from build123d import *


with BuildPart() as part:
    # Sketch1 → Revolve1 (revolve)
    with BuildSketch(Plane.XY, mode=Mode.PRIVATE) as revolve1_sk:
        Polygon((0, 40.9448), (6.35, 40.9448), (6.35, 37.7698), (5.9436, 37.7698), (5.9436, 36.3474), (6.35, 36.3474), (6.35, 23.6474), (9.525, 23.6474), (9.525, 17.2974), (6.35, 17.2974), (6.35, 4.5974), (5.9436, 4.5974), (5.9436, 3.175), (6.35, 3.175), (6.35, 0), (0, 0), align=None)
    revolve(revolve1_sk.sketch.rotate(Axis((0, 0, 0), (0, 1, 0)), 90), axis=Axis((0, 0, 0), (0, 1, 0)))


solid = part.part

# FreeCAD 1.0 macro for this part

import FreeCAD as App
import Part
import Sketcher

V = App.Vector
Q = App.Units.Quantity


def add_polygon(sketch, points):
    """Adds a closed chain of lines whose ends are joined by coincident constraints."""
    first, n = sketch.GeometryCount, len(points)
    for a, b in zip(points, points[1:] + points[:1]):
        sketch.addGeometry(Part.LineSegment(App.Vector(*a, 0), App.Vector(*b, 0)), False)
    for i in range(n):
        sketch.addConstraint(Sketcher.Constraint("Coincident", first + i, 2, first + (i + 1) % n, 1))

doc = App.newDocument("Part")
body = doc.addObject("PartDesign::Body", "Body")

sketch1 = body.newObject("Sketcher::SketchObject", "Sketch")
sketch1.AttachmentSupport = (doc.getObject("XY_Plane"), [""])
sketch1.MapMode = "FlatFace"
add_polygon(sketch1, [(6.35, 40.9448), (0, 40.9448), (0, 0), (6.35, 0), (6.35, 3.175), (5.9436, 3.175), (5.9436, 4.5974), (6.35, 4.5974), (6.35, 17.2974), (9.525, 17.2974), (9.525, 23.6474), (6.35, 23.6474), (6.35, 36.3474), (5.9436, 36.3474), (5.9436, 37.7698), (6.35, 37.7698)])
sketch1.addConstraint(Sketcher.Constraint("Horizontal", 0))
sketch1.addConstraint(Sketcher.Constraint("Vertical", 1))
sketch1.addConstraint(Sketcher.Constraint("Horizontal", 2))
sketch1.addConstraint(Sketcher.Constraint("Vertical", 3))
sketch1.addConstraint(Sketcher.Constraint("Horizontal", 4))
sketch1.addConstraint(Sketcher.Constraint("Vertical", 5))
sketch1.addConstraint(Sketcher.Constraint("Horizontal", 6))
sketch1.addConstraint(Sketcher.Constraint("Vertical", 7))
sketch1.addConstraint(Sketcher.Constraint("Horizontal", 8))
sketch1.addConstraint(Sketcher.Constraint("Vertical", 9))
sketch1.addConstraint(Sketcher.Constraint("Horizontal", 10))
sketch1.addConstraint(Sketcher.Constraint("Vertical", 11))
sketch1.addConstraint(Sketcher.Constraint("Horizontal", 12))
sketch1.addConstraint(Sketcher.Constraint("Vertical", 13))
sketch1.addConstraint(Sketcher.Constraint("Horizontal", 14))
sketch1.addConstraint(Sketcher.Constraint("Vertical", 15))
sketch1.addConstraint(Sketcher.Constraint("Coincident", 1, 2, -1, 1))
sketch1.addConstraint(Sketcher.Constraint("Vertical", 3, 2, 6, 2))
sketch1.addConstraint(Sketcher.Constraint("Vertical", 7, 2, 10, 2))
sketch1.addConstraint(Sketcher.Constraint("Vertical", 5, 2, 12, 2))
sketch1.addConstraint(Sketcher.Constraint("Vertical", 11, 2, 14, 2))
sketch1.addConstraint(Sketcher.Constraint("Equal", 10, 3))
sketch1.addConstraint(Sketcher.Constraint("Equal", 2, 9))
sketch1.addConstraint(Sketcher.Constraint("Equal", 7, 11))
sketch1.addConstraint(Sketcher.Constraint("Equal", 5, 13))
sketch1.addConstraint(Sketcher.Constraint("Equal", 3, 15))
sketch1.addConstraint(Sketcher.Constraint("DistanceY", 7, 1, 7, 2, Q("0.5 in")))
sketch1.addConstraint(Sketcher.Constraint("DistanceX", 0, 2, 0, 1, Q("0.25 in")))
sketch1.addConstraint(Sketcher.Constraint("DistanceX", 4, 2, 4, 1, Q("0.016 in")))
sketch1.addConstraint(Sketcher.Constraint("DistanceX", 8, 1, 8, 2, Q("0.125 in")))
sketch1.addConstraint(Sketcher.Constraint("DistanceY", 1, 2, 1, 1, Q("1.612 in")))
revolution = body.newObject("PartDesign::Revolution", "Revolution")
revolution.Profile = sketch1
revolution.ReferenceAxis = (sketch1, ["V_Axis"])
revolution.Angle = 360

doc.recompute()
